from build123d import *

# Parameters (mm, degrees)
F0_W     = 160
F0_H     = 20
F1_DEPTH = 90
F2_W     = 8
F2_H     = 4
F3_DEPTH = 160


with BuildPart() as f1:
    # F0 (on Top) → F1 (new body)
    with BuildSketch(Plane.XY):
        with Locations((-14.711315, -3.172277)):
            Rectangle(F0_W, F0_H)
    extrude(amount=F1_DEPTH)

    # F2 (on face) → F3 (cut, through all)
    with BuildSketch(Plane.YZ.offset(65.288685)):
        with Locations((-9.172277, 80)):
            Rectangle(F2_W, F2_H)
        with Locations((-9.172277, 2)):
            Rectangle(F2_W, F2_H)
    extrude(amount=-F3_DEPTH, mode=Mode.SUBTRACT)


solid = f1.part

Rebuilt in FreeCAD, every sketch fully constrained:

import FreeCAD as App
import Part
import Sketcher

V = App.Vector
Q = App.Units.Quantity

doc = App.newDocument("Part")
body = doc.addObject("PartDesign::Body", "Body")

# Sketch on XY plane
sketch1 = body.newObject("Sketcher::SketchObject", "Sketch")
sketch1.AttachmentSupport = (doc.getObject("XY_Plane"), [""])
sketch1.MapMode = "FlatFace"
sketch1.addGeometry([
    Part.LineSegment(V(-94.711315, 6.827723, 0), V(-94.711315, -13.172277, 0)),
    Part.LineSegment(V(-94.711315, -13.172277, 0), V(65.288685, -13.172277, 0)),
    Part.LineSegment(V(65.288685, -13.172277, 0), V(65.288685, 6.827723, 0)),
    Part.LineSegment(V(65.288685, 6.827723, 0), V(-94.711315, 6.827723, 0)),
], False)
sketch1.addConstraint([
    Sketcher.Constraint("Coincident", 0, 2, 1, 1),
    Sketcher.Constraint("Coincident", 1, 2, 2, 1),
    Sketcher.Constraint("Coincident", 2, 2, 3, 1),
    Sketcher.Constraint("Coincident", 3, 2, 0, 1),
    Sketcher.Constraint("Vertical", 0),
    Sketcher.Constraint("Horizontal", 1),
    Sketcher.Constraint("Vertical", 2),
    Sketcher.Constraint("Horizontal", 3),
    Sketcher.Constraint("DistanceX", 1, 1, 1, 2, Q("160 mm")),
    Sketcher.Constraint("DistanceY", 0, 2, 0, 1, Q("20 mm")),
    Sketcher.Constraint("DistanceX", 0, 2, -1, 1, Q("94.711315 mm")),
    Sketcher.Constraint("DistanceY", 0, 2, -1, 1, Q("13.172277 mm")),
])
pad1 = body.newObject("PartDesign::Pad", "Pad")
pad1.Profile = sketch1
pad1.Length = 90

# Sketch on YZ plane
sketch2 = body.newObject("Sketcher::SketchObject", "Sketch001")
sketch2.AttachmentSupport = (doc.getObject("YZ_Plane"), [""])
sketch2.MapMode = "FlatFace"
sketch2.AttachmentOffset = App.Placement(V(0, 0, 65.288685), App.Rotation())
sketch2.addGeometry([
    Part.LineSegment(V(-13.172277, 82, 0), V(-13.172277, 78, 0)),  # 0
    Part.LineSegment(V(-13.172277, 78, 0), V(-5.172277, 78, 0)),  # 1
    Part.LineSegment(V(-5.172277, 78, 0), V(-5.172277, 82, 0)),  # 2
    Part.LineSegment(V(-5.172277, 82, 0), V(-13.172277, 82, 0)),  # 3
    Part.LineSegment(V(-13.172277, 4, 0), V(-13.172277, 0, 0)),  # 4
    Part.LineSegment(V(-13.172277, 0, 0), V(-5.172277, 0, 0)),  # 5
    Part.LineSegment(V(-5.172277, 0, 0), V(-5.172277, 4, 0)),  # 6
    Part.LineSegment(V(-5.172277, 4, 0), V(-13.172277, 4, 0)),  # 7
], False)
sketch2.addConstraint([
    Sketcher.Constraint("Coincident", 0, 2, 1, 1),
    Sketcher.Constraint("Coincident", 1, 2, 2, 1),
    Sketcher.Constraint("Coincident", 2, 2, 3, 1),
    Sketcher.Constraint("Coincident", 3, 2, 0, 1),
    Sketcher.Constraint("Coincident", 4, 2, 5, 1),
    Sketcher.Constraint("Coincident", 5, 2, 6, 1),
    Sketcher.Constraint("Coincident", 6, 2, 7, 1),
    Sketcher.Constraint("Coincident", 7, 2, 4, 1),
    Sketcher.Constraint("Vertical", 0),
    Sketcher.Constraint("Horizontal", 1),
    Sketcher.Constraint("Vertical", 2),
    Sketcher.Constraint("Horizontal", 3),
    Sketcher.Constraint("Vertical", 4),
    Sketcher.Constraint("Horizontal", 5),
    Sketcher.Constraint("Vertical", 6),
    Sketcher.Constraint("Horizontal", 7),
    Sketcher.Constraint("PointOnObject", 4, 2, -1),
    Sketcher.Constraint("Vertical", 3, 2, 4, 2),
    Sketcher.Constraint("Vertical", 2, 2, 5, 2),
    Sketcher.Constraint("Equal", 2, 4),
    Sketcher.Constraint("DistanceX", 1, 1, 1, 2, Q("8 mm")),
    Sketcher.Constraint("DistanceY", 0, 2, 0, 1, Q("4 mm")),
    Sketcher.Constraint("DistanceY", -1, 1, 0, 2, Q("78 mm")),
    Sketcher.Constraint("DistanceX", 0, 2, -1, 1, Q("13.172277 mm")),
])
pocket1 = body.newObject("PartDesign::Pocket", "Pocket")
pocket1.Profile = sketch2
pocket1.Type = "ThroughAll"

doc.recompute()
